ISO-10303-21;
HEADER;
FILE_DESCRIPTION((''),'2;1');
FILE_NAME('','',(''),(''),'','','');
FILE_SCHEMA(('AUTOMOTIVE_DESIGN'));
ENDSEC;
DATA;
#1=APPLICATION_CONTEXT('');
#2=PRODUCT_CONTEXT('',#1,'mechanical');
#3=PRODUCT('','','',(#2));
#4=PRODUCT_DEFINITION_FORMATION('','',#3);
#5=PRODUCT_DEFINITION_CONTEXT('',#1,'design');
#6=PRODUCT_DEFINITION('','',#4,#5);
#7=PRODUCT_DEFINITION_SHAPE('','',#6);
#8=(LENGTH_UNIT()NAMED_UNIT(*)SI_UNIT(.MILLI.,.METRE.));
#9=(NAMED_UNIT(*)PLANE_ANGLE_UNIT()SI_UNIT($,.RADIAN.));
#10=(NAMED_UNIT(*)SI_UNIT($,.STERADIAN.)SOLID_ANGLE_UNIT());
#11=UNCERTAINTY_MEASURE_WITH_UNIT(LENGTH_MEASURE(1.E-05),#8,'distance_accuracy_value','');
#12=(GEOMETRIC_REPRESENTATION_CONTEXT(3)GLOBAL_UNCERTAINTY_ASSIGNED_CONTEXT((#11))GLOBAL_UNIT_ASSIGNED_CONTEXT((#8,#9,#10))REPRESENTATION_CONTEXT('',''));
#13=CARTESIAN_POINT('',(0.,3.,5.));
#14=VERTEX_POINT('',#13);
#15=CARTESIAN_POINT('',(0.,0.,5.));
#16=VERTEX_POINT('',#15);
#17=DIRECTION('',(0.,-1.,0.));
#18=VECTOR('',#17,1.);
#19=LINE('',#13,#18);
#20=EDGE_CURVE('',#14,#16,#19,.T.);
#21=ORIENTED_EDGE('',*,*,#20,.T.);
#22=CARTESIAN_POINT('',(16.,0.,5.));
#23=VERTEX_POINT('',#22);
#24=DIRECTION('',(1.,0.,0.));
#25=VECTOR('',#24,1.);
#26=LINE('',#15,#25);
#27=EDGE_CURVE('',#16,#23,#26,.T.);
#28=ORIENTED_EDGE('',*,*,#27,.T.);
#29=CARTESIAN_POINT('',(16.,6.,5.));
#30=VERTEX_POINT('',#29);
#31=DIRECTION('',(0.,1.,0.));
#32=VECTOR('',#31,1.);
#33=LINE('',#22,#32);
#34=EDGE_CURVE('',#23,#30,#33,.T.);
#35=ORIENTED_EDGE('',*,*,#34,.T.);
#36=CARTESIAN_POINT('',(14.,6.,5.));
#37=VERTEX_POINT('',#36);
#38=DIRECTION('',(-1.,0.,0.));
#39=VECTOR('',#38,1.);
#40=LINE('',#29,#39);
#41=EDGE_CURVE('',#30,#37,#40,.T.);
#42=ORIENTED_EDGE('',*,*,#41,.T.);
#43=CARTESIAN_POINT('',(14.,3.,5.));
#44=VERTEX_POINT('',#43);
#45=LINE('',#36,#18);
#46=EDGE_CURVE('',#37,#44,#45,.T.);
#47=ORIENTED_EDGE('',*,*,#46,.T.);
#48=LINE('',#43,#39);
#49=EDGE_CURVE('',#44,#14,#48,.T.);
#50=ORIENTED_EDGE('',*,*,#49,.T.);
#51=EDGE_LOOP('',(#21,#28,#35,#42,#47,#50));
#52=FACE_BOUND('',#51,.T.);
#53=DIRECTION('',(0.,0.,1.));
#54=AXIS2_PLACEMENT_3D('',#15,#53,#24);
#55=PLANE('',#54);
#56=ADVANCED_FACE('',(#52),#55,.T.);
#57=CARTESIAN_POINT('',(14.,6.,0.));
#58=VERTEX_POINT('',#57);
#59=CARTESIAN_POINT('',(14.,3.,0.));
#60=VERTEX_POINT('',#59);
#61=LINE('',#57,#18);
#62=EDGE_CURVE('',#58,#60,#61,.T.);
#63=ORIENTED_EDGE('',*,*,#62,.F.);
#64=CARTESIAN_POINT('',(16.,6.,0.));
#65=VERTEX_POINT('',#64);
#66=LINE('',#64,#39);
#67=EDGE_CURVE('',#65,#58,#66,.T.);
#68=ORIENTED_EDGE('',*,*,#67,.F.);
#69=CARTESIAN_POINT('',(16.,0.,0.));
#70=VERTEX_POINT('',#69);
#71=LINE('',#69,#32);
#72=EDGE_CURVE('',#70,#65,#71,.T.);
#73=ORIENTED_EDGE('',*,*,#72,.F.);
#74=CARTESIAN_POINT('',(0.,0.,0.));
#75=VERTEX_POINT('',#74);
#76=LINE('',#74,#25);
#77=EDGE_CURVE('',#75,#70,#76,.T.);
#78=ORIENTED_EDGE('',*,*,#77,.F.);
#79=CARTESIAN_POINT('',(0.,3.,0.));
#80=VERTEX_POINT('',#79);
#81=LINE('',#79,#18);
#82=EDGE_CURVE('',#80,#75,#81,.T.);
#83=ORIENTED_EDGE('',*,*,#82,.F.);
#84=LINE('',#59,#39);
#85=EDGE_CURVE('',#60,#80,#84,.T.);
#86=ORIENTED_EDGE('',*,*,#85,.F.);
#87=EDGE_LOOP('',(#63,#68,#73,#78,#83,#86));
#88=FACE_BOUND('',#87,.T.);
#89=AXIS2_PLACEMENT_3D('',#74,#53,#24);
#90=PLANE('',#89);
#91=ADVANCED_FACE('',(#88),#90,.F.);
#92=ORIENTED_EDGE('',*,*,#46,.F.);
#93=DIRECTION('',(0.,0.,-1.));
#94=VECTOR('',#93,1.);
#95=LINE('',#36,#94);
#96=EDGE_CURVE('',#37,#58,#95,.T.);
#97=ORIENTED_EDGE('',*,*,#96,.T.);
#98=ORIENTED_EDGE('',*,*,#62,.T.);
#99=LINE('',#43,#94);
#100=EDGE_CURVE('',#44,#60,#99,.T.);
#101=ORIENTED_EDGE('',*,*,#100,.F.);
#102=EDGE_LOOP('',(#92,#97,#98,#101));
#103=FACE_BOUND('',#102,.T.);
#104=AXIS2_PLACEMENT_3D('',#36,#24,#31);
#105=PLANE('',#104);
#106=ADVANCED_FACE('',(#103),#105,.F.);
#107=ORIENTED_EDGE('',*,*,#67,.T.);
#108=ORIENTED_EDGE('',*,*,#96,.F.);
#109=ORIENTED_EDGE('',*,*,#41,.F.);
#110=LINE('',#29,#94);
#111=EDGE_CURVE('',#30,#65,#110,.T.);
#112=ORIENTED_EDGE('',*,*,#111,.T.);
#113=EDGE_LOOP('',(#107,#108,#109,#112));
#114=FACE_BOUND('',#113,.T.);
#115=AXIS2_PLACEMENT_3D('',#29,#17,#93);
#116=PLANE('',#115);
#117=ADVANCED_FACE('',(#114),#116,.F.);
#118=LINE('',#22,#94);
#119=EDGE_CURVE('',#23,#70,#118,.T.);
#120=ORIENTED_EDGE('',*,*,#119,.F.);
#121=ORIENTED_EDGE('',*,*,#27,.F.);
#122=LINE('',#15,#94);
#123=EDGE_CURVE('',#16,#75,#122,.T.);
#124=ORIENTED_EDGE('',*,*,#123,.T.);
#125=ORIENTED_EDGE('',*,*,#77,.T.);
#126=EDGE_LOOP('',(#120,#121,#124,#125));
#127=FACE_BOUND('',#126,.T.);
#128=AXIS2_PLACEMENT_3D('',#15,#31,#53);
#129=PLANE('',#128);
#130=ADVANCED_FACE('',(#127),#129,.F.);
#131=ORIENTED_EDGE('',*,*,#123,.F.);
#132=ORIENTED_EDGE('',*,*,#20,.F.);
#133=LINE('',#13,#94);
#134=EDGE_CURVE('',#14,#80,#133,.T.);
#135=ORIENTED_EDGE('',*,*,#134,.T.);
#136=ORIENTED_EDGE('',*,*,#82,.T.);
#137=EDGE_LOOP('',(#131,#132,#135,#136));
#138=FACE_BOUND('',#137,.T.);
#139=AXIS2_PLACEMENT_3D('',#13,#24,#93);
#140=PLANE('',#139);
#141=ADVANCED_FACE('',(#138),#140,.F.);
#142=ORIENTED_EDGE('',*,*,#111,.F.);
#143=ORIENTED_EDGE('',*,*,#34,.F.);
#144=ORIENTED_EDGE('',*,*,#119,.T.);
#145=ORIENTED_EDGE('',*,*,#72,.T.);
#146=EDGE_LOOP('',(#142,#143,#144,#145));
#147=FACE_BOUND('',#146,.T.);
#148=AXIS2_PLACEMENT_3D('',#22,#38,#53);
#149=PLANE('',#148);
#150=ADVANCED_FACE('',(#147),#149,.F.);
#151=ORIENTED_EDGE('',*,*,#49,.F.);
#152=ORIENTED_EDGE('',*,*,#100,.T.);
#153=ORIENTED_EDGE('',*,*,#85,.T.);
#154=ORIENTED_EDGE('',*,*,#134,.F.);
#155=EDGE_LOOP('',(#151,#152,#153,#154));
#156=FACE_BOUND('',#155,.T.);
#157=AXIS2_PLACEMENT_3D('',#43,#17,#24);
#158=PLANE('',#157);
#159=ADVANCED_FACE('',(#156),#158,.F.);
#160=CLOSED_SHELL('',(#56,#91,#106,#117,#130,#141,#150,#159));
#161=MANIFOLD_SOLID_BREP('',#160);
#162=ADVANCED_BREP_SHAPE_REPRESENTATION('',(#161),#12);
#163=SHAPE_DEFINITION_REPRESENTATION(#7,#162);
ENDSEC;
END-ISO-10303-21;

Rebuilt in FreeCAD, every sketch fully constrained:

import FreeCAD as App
import Part
import Sketcher

V = App.Vector


def add_polygon(sketch, points):
    """Adds a closed chain of lines whose ends are joined by coincident constraints."""
    first, n = sketch.GeometryCount, len(points)
    for a, b in zip(points, points[1:] + points[:1]):
        sketch.addGeometry(Part.LineSegment(App.Vector(*a, 0), App.Vector(*b, 0)), False)
    for i in range(n):
        sketch.addConstraint(Sketcher.Constraint("Coincident", first + i, 2, first + (i + 1) % n, 1))

doc = App.newDocument("Part")
body = doc.addObject("PartDesign::Body", "Body")

sketch1 = doc.addObject("Sketcher::SketchObject", "Sketch")
body.addObject(sketch1)
sketch1.AttachmentSupport = (doc.XY_Plane, [""])
sketch1.MapMode = "FlatFace"
add_polygon(sketch1, [(0, 0), (16, 0), (16, 6), (14, 6), (14, 3), (0, 3)])
sketch1.addConstraint(Sketcher.Constraint("Horizontal", 0))
sketch1.addConstraint(Sketcher.Constraint("Vertical", 1))
sketch1.addConstraint(Sketcher.Constraint("Horizontal", 2))
sketch1.addConstraint(Sketcher.Constraint("Vertical", 3))
sketch1.addConstraint(Sketcher.Constraint("Horizontal", 4))
sketch1.addConstraint(Sketcher.Constraint("Vertical", 5))
sketch1.addConstraint(Sketcher.Constraint("Coincident", 5, 2, -1, 1))
sketch1.addConstraint(Sketcher.Constraint("Equal", 3, 5))
sketch1.addConstraint(Sketcher.Constraint("DistanceX", 0, 1, 0, 2, 16.0))
sketch1.addConstraint(Sketcher.Constraint("DistanceX", 2, 2, 2, 1, 2.0))
sketch1.addConstraint(Sketcher.Constraint("DistanceY", 1, 1, 1, 2, 6.0))
pad1 = doc.addObject("PartDesign::Pad", "Pad")
body.addObject(pad1)
pad1.Profile = sketch1
pad1.Length = 5

doc.recompute()
